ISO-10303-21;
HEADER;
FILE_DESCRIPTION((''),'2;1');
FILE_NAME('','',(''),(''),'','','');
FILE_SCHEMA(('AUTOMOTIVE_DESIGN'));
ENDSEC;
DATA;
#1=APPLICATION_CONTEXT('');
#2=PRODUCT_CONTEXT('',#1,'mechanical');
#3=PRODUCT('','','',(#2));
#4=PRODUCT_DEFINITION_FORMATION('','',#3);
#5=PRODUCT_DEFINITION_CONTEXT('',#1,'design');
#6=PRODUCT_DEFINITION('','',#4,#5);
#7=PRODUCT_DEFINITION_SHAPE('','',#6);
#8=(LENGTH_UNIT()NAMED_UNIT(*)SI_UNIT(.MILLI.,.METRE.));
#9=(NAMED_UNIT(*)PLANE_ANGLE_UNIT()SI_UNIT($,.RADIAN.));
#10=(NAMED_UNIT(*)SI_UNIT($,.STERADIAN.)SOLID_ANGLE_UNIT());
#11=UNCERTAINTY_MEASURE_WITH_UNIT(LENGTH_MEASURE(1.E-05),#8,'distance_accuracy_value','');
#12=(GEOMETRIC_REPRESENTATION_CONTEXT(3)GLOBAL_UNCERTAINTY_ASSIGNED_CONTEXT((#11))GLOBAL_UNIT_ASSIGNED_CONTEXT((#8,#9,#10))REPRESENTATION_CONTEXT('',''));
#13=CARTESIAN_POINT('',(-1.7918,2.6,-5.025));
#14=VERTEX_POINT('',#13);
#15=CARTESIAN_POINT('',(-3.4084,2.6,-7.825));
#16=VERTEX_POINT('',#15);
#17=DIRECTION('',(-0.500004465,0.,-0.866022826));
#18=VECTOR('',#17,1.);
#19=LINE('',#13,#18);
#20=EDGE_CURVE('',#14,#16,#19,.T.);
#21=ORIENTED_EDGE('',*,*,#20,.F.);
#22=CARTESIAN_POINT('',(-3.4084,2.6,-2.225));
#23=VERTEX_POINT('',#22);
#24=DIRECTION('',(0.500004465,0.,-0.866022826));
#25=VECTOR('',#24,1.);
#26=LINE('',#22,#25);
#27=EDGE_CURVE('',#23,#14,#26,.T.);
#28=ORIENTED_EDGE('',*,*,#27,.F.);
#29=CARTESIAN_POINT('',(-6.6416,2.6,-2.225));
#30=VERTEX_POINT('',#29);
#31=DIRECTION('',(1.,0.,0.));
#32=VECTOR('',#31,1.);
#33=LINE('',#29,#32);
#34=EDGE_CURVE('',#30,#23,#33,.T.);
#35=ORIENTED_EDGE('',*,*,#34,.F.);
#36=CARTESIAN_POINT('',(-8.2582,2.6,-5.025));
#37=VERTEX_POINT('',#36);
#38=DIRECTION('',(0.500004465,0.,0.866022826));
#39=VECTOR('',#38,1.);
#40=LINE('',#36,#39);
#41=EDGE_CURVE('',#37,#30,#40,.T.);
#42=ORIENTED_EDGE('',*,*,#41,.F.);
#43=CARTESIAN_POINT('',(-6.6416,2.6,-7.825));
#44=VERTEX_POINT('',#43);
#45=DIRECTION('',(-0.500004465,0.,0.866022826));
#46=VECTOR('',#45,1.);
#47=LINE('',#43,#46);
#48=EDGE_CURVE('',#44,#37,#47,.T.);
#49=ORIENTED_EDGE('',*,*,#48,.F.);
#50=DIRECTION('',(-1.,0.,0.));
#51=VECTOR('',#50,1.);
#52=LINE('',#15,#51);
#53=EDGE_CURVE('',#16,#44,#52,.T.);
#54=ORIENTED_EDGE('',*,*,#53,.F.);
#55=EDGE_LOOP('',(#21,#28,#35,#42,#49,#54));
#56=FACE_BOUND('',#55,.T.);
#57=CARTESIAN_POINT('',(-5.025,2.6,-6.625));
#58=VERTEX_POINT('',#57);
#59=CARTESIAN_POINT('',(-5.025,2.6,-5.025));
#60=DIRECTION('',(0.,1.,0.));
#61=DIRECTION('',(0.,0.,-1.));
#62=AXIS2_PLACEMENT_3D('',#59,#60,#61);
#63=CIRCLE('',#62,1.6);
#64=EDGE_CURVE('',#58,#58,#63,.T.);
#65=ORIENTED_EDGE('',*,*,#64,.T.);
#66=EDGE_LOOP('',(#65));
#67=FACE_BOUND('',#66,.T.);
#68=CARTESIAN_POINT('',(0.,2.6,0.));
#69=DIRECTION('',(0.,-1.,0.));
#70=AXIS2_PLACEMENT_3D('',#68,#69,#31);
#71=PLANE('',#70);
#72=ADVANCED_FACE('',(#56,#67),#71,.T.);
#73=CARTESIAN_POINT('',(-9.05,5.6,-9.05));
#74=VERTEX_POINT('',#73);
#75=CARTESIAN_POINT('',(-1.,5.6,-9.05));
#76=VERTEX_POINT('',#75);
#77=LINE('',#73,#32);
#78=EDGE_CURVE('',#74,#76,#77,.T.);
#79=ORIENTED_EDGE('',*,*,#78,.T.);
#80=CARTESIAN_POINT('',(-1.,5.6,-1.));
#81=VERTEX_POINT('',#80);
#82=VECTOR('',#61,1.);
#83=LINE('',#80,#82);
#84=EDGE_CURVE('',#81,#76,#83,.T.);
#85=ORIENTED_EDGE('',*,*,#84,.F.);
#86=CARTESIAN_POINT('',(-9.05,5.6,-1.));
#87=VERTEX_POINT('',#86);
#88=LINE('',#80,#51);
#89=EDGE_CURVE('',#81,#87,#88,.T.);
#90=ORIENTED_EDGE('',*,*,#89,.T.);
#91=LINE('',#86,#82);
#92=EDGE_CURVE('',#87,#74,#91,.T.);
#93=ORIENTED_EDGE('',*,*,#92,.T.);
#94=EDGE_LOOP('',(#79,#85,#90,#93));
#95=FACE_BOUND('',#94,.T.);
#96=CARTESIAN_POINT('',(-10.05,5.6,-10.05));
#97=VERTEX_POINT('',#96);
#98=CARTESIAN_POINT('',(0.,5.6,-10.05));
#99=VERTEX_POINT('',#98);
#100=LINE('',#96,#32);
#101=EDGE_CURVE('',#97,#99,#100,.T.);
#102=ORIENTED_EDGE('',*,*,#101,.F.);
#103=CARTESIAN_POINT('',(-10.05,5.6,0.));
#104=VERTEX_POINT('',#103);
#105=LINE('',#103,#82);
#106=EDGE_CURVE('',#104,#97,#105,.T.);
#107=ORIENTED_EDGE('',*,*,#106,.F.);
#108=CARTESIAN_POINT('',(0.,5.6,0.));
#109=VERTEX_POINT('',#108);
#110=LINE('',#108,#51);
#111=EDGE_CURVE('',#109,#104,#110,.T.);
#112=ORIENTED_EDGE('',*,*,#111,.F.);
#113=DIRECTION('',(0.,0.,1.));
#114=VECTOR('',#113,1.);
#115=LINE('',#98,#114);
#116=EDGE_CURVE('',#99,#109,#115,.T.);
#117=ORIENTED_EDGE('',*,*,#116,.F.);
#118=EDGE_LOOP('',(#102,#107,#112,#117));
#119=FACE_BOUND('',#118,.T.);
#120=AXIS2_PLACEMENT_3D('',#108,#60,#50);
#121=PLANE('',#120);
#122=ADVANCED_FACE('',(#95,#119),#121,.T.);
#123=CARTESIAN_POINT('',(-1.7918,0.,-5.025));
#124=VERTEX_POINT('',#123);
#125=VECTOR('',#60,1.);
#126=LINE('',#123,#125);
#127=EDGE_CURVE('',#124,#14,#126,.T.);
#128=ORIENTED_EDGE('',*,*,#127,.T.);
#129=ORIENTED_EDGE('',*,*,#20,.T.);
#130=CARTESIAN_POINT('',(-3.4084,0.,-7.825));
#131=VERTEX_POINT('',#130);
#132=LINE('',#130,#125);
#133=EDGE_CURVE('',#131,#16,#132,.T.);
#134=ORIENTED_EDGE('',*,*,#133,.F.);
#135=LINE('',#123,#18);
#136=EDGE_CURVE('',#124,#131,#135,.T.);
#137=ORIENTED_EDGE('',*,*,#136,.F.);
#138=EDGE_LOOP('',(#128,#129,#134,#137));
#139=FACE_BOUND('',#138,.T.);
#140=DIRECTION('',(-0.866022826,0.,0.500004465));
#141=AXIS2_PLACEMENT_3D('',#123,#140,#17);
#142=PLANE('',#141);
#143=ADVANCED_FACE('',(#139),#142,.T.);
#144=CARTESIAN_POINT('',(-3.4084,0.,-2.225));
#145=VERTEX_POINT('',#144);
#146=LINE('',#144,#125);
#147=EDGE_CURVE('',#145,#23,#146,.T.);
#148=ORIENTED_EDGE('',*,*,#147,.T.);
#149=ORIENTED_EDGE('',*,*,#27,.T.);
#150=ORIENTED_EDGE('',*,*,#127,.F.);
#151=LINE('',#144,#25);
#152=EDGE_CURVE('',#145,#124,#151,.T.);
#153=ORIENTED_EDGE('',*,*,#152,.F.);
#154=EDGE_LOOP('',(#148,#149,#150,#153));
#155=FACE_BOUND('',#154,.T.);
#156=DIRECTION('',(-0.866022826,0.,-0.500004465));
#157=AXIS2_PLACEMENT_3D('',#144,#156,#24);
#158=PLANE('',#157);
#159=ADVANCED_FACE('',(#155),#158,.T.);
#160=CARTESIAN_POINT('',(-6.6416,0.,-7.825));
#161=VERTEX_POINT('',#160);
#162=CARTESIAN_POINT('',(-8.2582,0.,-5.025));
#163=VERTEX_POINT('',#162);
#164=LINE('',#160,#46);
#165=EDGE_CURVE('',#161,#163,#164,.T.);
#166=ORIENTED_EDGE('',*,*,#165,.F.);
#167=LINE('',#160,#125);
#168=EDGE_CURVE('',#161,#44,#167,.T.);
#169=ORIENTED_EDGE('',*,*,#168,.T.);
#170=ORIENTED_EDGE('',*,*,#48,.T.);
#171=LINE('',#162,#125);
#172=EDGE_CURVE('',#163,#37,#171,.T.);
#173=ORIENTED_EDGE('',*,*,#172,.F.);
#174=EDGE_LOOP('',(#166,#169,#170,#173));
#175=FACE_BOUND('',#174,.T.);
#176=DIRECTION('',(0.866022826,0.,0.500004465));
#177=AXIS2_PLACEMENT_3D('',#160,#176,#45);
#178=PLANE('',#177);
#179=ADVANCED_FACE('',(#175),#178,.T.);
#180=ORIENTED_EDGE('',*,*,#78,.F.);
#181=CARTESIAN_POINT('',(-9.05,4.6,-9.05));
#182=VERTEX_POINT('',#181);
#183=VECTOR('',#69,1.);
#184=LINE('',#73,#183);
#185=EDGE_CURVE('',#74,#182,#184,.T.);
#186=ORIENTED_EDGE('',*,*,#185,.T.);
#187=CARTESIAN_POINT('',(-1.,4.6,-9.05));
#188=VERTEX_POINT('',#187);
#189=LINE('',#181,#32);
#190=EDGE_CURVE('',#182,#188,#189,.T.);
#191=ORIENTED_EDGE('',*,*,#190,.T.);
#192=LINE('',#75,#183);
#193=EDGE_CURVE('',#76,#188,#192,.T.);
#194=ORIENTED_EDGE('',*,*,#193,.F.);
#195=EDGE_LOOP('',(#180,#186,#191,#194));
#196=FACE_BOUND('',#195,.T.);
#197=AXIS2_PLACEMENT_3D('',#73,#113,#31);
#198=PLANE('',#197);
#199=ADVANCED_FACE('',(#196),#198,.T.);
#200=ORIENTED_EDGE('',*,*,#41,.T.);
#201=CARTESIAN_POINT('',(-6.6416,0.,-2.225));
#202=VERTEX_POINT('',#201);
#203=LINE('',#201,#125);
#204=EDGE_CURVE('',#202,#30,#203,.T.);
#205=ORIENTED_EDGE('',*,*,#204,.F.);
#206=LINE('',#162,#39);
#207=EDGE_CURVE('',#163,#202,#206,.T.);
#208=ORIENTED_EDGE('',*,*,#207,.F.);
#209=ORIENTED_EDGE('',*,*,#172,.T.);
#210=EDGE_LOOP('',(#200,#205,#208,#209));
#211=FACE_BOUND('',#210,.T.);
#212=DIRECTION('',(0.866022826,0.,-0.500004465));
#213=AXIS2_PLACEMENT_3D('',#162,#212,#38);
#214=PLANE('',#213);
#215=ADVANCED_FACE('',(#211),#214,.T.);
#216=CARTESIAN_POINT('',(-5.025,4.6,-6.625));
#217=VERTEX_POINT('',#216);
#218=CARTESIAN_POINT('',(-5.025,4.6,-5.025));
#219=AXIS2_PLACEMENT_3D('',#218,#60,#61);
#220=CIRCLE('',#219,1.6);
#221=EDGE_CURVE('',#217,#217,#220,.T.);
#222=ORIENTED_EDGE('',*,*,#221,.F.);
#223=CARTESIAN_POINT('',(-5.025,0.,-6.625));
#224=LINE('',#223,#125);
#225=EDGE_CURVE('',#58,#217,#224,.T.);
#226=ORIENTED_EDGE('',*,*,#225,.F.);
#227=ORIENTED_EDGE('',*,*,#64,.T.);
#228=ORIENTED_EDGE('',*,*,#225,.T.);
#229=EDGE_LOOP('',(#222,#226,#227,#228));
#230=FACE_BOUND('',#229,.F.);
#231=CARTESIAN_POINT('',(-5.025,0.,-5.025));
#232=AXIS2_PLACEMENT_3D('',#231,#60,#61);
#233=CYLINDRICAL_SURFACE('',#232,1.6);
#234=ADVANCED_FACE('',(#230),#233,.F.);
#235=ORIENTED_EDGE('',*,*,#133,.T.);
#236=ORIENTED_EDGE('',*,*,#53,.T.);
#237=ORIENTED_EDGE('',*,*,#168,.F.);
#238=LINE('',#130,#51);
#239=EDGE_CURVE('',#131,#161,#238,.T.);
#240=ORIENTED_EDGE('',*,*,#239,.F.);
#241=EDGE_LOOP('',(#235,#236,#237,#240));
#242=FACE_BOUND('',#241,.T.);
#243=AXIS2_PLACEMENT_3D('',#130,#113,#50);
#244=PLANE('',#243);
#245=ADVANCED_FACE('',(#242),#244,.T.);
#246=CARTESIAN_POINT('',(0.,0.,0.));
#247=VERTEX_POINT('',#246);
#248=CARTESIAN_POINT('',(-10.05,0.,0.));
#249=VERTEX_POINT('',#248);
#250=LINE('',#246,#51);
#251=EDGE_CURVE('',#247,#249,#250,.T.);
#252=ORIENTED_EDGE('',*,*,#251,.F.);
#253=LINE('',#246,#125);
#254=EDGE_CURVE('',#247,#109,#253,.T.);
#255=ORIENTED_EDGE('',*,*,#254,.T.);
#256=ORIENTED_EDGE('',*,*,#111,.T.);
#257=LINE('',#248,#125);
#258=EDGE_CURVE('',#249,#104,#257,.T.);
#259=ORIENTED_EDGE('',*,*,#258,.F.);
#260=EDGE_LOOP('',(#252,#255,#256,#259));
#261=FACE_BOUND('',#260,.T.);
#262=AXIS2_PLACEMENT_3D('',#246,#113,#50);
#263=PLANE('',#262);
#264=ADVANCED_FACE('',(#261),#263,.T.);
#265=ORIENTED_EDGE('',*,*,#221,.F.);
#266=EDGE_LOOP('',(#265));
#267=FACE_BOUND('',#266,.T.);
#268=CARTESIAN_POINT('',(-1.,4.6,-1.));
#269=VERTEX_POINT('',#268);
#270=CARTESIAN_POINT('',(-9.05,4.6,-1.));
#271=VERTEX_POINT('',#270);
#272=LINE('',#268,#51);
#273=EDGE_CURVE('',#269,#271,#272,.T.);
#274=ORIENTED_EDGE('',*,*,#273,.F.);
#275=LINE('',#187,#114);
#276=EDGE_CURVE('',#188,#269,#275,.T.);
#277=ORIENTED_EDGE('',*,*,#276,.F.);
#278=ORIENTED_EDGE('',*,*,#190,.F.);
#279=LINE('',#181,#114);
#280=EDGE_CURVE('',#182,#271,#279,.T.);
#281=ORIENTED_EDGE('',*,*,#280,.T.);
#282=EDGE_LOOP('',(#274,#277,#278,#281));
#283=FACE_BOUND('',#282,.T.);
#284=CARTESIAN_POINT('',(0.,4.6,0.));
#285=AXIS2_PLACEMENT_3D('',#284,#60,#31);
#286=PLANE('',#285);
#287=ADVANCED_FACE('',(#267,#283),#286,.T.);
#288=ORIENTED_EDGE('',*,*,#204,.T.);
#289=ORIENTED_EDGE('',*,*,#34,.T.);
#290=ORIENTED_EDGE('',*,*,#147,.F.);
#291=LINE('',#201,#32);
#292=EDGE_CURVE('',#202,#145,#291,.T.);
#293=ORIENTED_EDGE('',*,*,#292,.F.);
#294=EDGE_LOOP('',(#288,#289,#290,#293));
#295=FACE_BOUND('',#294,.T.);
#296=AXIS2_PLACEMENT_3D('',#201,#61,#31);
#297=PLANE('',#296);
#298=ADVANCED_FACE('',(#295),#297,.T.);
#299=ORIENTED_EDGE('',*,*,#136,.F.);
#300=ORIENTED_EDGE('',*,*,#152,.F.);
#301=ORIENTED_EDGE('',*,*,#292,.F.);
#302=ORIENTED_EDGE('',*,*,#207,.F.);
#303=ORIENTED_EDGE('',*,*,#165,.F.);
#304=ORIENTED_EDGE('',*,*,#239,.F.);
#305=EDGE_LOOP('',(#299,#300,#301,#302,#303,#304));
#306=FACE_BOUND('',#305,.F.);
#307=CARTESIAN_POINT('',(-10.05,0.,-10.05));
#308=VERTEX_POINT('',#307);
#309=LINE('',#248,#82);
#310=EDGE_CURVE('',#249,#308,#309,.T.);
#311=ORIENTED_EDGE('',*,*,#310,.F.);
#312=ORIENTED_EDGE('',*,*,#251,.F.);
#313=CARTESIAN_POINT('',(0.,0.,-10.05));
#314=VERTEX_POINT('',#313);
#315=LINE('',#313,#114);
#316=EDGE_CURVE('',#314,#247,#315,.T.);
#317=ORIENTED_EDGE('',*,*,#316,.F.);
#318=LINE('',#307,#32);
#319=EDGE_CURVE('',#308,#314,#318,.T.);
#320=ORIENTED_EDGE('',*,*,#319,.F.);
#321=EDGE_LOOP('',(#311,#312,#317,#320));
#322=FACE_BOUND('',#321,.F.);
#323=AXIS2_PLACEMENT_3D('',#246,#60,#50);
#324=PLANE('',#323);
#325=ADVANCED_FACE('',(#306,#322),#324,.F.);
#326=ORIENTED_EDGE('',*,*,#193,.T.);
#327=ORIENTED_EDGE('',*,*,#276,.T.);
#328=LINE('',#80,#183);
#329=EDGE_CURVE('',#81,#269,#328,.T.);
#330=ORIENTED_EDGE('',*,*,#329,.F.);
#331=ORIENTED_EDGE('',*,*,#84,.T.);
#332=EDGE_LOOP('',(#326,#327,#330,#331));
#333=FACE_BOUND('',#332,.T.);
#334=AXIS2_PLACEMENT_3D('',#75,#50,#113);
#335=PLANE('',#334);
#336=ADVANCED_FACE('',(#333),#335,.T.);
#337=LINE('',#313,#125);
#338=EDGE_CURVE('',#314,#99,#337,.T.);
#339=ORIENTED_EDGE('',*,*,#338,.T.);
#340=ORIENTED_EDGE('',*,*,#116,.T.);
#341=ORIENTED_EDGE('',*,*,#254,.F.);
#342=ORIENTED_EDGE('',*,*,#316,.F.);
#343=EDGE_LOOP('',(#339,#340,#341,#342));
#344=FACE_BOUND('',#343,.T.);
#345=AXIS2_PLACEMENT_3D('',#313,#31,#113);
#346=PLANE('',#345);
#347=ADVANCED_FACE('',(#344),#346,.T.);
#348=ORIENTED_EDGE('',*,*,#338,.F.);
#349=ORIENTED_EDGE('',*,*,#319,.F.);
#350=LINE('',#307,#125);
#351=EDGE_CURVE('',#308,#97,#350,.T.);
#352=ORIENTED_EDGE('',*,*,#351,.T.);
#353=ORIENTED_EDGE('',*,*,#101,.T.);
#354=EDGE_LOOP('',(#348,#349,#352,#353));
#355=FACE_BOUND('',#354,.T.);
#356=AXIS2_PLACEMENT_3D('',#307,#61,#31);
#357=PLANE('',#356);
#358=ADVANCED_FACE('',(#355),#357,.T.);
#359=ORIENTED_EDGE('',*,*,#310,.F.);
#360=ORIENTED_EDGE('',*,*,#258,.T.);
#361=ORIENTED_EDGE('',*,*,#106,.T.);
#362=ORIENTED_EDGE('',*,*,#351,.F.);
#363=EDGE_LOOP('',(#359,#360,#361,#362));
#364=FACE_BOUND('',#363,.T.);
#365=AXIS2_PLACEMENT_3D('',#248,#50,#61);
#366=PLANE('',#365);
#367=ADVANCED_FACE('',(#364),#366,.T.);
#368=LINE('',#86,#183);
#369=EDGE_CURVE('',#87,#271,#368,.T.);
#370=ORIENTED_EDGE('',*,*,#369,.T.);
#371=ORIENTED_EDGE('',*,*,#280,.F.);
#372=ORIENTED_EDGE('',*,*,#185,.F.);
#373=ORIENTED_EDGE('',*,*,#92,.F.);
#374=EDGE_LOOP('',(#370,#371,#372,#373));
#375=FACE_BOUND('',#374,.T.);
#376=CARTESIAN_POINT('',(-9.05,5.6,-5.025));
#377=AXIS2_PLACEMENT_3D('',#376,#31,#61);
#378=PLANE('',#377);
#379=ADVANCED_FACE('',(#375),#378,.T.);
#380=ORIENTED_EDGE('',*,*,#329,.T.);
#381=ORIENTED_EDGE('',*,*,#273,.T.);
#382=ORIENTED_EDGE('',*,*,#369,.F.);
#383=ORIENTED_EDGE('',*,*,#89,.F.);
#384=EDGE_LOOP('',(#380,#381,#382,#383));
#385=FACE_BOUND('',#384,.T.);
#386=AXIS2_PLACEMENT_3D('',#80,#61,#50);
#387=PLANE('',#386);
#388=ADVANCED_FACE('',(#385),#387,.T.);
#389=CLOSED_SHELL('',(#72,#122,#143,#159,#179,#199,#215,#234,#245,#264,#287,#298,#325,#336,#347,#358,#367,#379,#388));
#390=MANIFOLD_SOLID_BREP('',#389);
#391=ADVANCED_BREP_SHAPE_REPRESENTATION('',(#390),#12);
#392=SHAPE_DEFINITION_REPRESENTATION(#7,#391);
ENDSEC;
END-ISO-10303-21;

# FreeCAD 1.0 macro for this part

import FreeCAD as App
import Part
import Sketcher
Q = App.Units.Quantity


def add_polygon(sketch, points):
    """Adds a closed chain of lines whose ends are joined by coincident constraints."""
    first, n = sketch.GeometryCount, len(points)
    for a, b in zip(points, points[1:] + points[:1]):
        sketch.addGeometry(Part.LineSegment(App.Vector(*a, 0), App.Vector(*b, 0)), False)
    for i in range(n):
        sketch.addConstraint(Sketcher.Constraint("Coincident", first + i, 2, first + (i + 1) % n, 1))

doc = App.newDocument("Part")
body = doc.addObject("PartDesign::Body", "Body")

# Sketch on XZ plane
sketch1 = doc.addObject("Sketcher::SketchObject", "Sketch")
body.addObject(sketch1)
sketch1.AttachmentSupport = (doc.XZ_Plane, [""])
sketch1.MapMode = "FlatFace"
add_polygon(sketch1, [(-10, 0), (0, 0), (0, -10), (-10, -10)])  # lines 0-3
sketch1.addConstraint(Sketcher.Constraint("Horizontal", 0))
sketch1.addConstraint(Sketcher.Constraint("Vertical", 1))
sketch1.addConstraint(Sketcher.Constraint("Horizontal", 2))
sketch1.addConstraint(Sketcher.Constraint("Vertical", 3))
sketch1.addConstraint(Sketcher.Constraint("Coincident", 0, 2, -1, 1))
sketch1.addConstraint(Sketcher.Constraint("Equal", 2, 1))
sketch1.addConstraint(Sketcher.Constraint("DistanceX", 0, 1, 0, 2, Q("10.05 mm")))
pad1 = doc.addObject("PartDesign::Pad", "Pad")
body.addObject(pad1)
pad1.Profile = sketch1
pad1.Length = 5.6
pad1.Reversed = True

# Sketch on XZ plane
sketch2 = doc.addObject("Sketcher::SketchObject", "Sketch001")
body.addObject(sketch2)
sketch2.AttachmentSupport = (doc.XZ_Plane, [""])
sketch2.MapMode = "FlatFace"
sketch2.AttachmentOffset = App.Placement(App.Vector(0, 0, -5.6), App.Rotation())
add_polygon(sketch2, [(-9, -9), (-9, -1), (-1, -1), (-1, -9)])  # lines 0-3
sketch2.addConstraint(Sketcher.Constraint("Vertical", 0))
sketch2.addConstraint(Sketcher.Constraint("Horizontal", 1))
sketch2.addConstraint(Sketcher.Constraint("Vertical", 2))
sketch2.addConstraint(Sketcher.Constraint("Horizontal", 3))
sketch2.addConstraint(Sketcher.Constraint("Equal", 3, 0))
sketch2.addConstraint(Sketcher.Constraint("DistanceX", 1, 1, 1, 2, Q("8.05 mm")))
sketch2.addConstraint(Sketcher.Constraint("DistanceY", 0, 2, -1, 1, Q("1 mm")))
sketch2.addConstraint(Sketcher.Constraint("DistanceX", 1, 2, -1, 1, Q("1 mm")))
pocket1 = doc.addObject("PartDesign::Pocket", "Pocket")
body.addObject(pocket1)
pocket1.Profile = sketch2
pocket1.Length = 1
pocket1.Reversed = True

# Sketch on XZ plane
sketch3 = doc.addObject("Sketcher::SketchObject", "Sketch002")
body.addObject(sketch3)
sketch3.AttachmentSupport = (doc.XZ_Plane, [""])
sketch3.MapMode = "FlatFace"
sketch3.addGeometry(Part.Circle(App.Vector(-5, -5, 0), App.Vector(0, 0, 1), 1.6), False)
sketch3.addConstraint(Sketcher.Constraint("Diameter", 0, Q("3.2 mm")))
sketch3.addConstraint(Sketcher.Constraint("DistanceX", 0, 3, -1, 1, Q("5.025 mm")))
sketch3.addConstraint(Sketcher.Constraint("DistanceY", 0, 3, -1, 1, Q("5.025 mm")))
doc.recompute()
hole = doc.addObject("PartDesign::Hole", "Hole")
body.addObject(hole)
hole.Profile = sketch3
hole.ThreadType = "None"
hole.Diameter = 3.2
hole.DepthType = "ThroughAll"

# Sketch on XZ plane
sketch4 = doc.addObject("Sketcher::SketchObject", "Sketch003")
body.addObject(sketch4)
sketch4.AttachmentSupport = (doc.XZ_Plane, [""])
sketch4.MapMode = "FlatFace"
add_polygon(sketch4, [(-8.3, -5), (-6.6, -7.8), (-3.4, -7.8), (-1.8, -5), (-3.4, -2.2), (-6.6, -2.2)])  # lines 0-5
sketch4.addConstraint(Sketcher.Constraint("Horizontal", 1))
sketch4.addConstraint(Sketcher.Constraint("Horizontal", 4))
sketch4.addConstraint(Sketcher.Constraint("Parallel", 0, 3))
sketch4.addConstraint(Sketcher.Constraint("Parallel", 2, 5))
sketch4.addConstraint(Sketcher.Constraint("Horizontal", 2, 2, 5, 2))
sketch4.addConstraint(Sketcher.Constraint("Vertical", 1, 2, 3, 2))
sketch4.addConstraint(Sketcher.Constraint("Vertical", 0, 2, 4, 2))
sketch4.addConstraint(Sketcher.Constraint("DistanceY", 1, 2, 3, 2, Q("5.6 mm")))
sketch4.addConstraint(Sketcher.Constraint("Angle", 0, Q("-59.9997 deg")))
sketch4.addConstraint(Sketcher.Constraint("DistanceX", 1, 1, 1, 2, Q("3.2332 mm")))
sketch4.addConstraint(Sketcher.Constraint("DistanceY", 0, 2, -1, 1, Q("7.825 mm")))
sketch4.addConstraint(Sketcher.Constraint("DistanceX", 0, 2, -1, 1, Q("6.6416 mm")))
pocket2 = doc.addObject("PartDesign::Pocket", "Pocket001")
body.addObject(pocket2)
pocket2.Profile = sketch4
pocket2.Length = 2.6

doc.recompute()
